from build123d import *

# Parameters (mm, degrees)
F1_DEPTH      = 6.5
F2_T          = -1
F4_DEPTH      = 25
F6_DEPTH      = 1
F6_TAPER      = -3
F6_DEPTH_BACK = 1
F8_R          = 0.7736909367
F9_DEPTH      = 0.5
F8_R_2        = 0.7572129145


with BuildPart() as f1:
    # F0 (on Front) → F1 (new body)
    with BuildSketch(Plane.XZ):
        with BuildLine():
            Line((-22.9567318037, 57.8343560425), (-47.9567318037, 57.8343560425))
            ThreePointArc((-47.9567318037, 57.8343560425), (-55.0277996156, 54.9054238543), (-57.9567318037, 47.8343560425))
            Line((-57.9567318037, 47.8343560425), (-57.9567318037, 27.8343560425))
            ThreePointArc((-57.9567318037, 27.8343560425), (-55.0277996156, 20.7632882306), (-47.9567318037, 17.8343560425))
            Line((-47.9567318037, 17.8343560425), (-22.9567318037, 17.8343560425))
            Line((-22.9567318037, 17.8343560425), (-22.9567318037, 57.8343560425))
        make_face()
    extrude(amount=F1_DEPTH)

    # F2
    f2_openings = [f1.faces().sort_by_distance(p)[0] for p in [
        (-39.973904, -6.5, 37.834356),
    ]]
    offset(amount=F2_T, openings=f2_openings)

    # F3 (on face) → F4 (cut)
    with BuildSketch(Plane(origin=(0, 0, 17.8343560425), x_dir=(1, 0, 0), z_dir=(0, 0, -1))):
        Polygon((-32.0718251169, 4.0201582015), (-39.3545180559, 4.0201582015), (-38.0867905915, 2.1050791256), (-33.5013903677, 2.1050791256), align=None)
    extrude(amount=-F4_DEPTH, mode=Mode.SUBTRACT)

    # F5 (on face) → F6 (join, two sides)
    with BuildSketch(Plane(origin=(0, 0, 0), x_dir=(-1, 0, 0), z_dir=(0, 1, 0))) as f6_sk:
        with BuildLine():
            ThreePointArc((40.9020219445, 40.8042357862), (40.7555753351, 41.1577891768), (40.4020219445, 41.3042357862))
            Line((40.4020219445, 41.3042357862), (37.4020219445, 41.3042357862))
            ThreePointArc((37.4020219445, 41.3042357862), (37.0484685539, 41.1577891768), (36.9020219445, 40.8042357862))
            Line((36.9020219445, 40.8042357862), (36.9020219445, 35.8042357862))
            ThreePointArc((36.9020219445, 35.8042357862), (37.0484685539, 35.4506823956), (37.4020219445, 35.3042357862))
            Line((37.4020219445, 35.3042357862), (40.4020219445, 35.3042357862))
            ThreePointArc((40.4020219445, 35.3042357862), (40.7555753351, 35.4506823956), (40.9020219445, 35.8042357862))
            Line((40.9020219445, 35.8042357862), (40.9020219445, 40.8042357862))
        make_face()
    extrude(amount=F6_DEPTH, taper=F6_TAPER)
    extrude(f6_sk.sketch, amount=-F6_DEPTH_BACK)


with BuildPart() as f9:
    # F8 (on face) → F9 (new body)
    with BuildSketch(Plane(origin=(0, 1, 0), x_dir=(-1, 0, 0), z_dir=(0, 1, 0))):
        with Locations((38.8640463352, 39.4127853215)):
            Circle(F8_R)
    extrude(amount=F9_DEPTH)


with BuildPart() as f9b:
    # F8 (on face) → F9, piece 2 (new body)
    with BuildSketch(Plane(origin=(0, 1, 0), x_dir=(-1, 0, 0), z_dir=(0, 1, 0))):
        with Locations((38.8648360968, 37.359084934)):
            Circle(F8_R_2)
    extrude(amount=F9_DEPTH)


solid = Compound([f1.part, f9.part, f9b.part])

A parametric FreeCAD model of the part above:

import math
import FreeCAD as App
import Part
import Sketcher
Q = App.Units.Quantity


def faces_at(feature, points):
    """Names of the faces that lie closest to the given points."""
    faces = feature.Shape.Faces
    near = lambda p: min(range(len(faces)), key=lambda i: faces[i].distToShape(Part.Vertex(*p))[0])
    return sorted({f"Face{near(p) + 1}" for p in points})


def add_polygon(sketch, points):
    """Adds a closed chain of lines whose ends are joined by coincident constraints."""
    first, n = sketch.GeometryCount, len(points)
    for a, b in zip(points, points[1:] + points[:1]):
        sketch.addGeometry(Part.LineSegment(App.Vector(*a, 0), App.Vector(*b, 0)), False)
    for i in range(n):
        sketch.addConstraint(Sketcher.Constraint("Coincident", first + i, 2, first + (i + 1) % n, 1))

doc = App.newDocument("Part")
body = doc.addObject("PartDesign::Body", "Body")

# Sketch on XZ plane
sketch1 = body.newObject("Sketcher::SketchObject", "Sketch")
sketch1.AttachmentSupport = (doc.getObject("XZ_Plane"), [""])
sketch1.MapMode = "FlatFace"
sketch1.addGeometry([
    Part.LineSegment(App.Vector(-23, 58, 0), App.Vector(-48, 58, 0)),  # 0
    Part.ArcOfCircle(Part.Circle(App.Vector(-48, 48, 0), App.Vector(0, 0, 1), 10), math.radians(90), math.radians(180)),  # 1
    Part.LineSegment(App.Vector(-58, 48, 0), App.Vector(-58, 28, 0)),  # 2
    Part.ArcOfCircle(Part.Circle(App.Vector(-48, 28, 0), App.Vector(0, 0, 1), 10), math.radians(180), math.radians(270)),  # 3
    Part.LineSegment(App.Vector(-48, 18, 0), App.Vector(-23, 18, 0)),  # 4
    Part.LineSegment(App.Vector(-23, 18, 0), App.Vector(-23, 58, 0)),  # 5
], False)
sketch1.addConstraint([
    Sketcher.Constraint("Tangent", 0, 2, 1, 1),
    Sketcher.Constraint("Tangent", 1, 2, 2, 1),
    Sketcher.Constraint("Tangent", 2, 2, 3, 1),
    Sketcher.Constraint("Tangent", 3, 2, 4, 1),
    Sketcher.Constraint("Coincident", 4, 2, 5, 1),
    Sketcher.Constraint("Coincident", 5, 2, 0, 1),
    Sketcher.Constraint("Horizontal", 0),
    Sketcher.Constraint("Vertical", 2),
    Sketcher.Constraint("Horizontal", 4),
    Sketcher.Constraint("Vertical", 5),
    Sketcher.Constraint("Equal", 1, 3),
    Sketcher.Constraint("Radius", 1, Q("10 mm")),
    Sketcher.Constraint("DistanceX", 0, 2, 0, 1, Q("25 mm")),
    Sketcher.Constraint("DistanceY", 2, 2, 2, 1, Q("20 mm")),
    Sketcher.Constraint("DistanceX", 1, 3, -1, 1, Q("47.956732 mm")),
    Sketcher.Constraint("DistanceY", -1, 1, 1, 3, Q("47.834356 mm")),
])
pad1 = body.newObject("PartDesign::Pad", "Pad")
pad1.Profile = sketch1
pad1.Length = 6.5
doc.recompute()

thickness = body.newObject("PartDesign::Thickness", "Thickness")
thickness.Base = (pad1, faces_at(pad1, [(-40.457, -6.5, 37.834)]))
thickness.Value = 1
thickness.Reversed = True
thickness.Join = "Arc"

# Sketch on XY plane
sketch2 = body.newObject("Sketcher::SketchObject", "Sketch001")
sketch2.AttachmentSupport = (doc.getObject("XY_Plane"), [""])
sketch2.MapMode = "FlatFace"
sketch2.AttachmentOffset = App.Placement(App.Vector(0, 0, 17.834356), App.Rotation())
add_polygon(sketch2, [(-32.1, -4), (-39.4, -4), (-38.1, -2.1), (-33.5, -2.1)])  # lines 0-3
sketch2.addConstraint([
    Sketcher.Constraint("Horizontal", 0),
    Sketcher.Constraint("Horizontal", 2),
    Sketcher.Constraint("DistanceX", 2, 1, 2, 2, Q("4.5854 mm")),
    Sketcher.Constraint("Distance", 3, Q("2.389809 mm")),
    Sketcher.Constraint("DistanceX", 0, 2, 0, 1, Q("7.282693 mm")),
    Sketcher.Constraint("DistanceX", 0, 2, -1, 1, Q("39.354518 mm")),
    Sketcher.Constraint("DistanceY", 0, 2, -1, 1, Q("4.020158 mm")),
    Sketcher.Constraint("DistanceX", 1, 2, -1, 1, Q("38.086791 mm")),
])
pocket1 = body.newObject("PartDesign::Pocket", "Pocket")
pocket1.Profile = sketch2
pocket1.Length = 25
pocket1.Reversed = True

# Sketch on XZ plane
sketch3 = body.newObject("Sketcher::SketchObject", "Sketch002")
sketch3.AttachmentSupport = (doc.getObject("XZ_Plane"), [""])
sketch3.MapMode = "FlatFace"
sketch3.addGeometry([
    Part.ArcOfCircle(Part.Circle(App.Vector(-40.4, 40.8, 0), App.Vector(0, 0, 1), 0.5), math.radians(90), math.radians(180)),  # 0
    Part.LineSegment(App.Vector(-40.4, 41.3, 0), App.Vector(-37.4, 41.3, 0)),  # 1
    Part.ArcOfCircle(Part.Circle(App.Vector(-37.4, 40.8, 0), App.Vector(0, 0, 1), 0.5), math.radians(0), math.radians(90)),  # 2
    Part.LineSegment(App.Vector(-36.9, 40.8, 0), App.Vector(-36.9, 35.8, 0)),  # 3
    Part.ArcOfCircle(Part.Circle(App.Vector(-37.4, 35.8, 0), App.Vector(0, 0, 1), 0.5), math.radians(-90), math.radians(0)),  # 4
    Part.LineSegment(App.Vector(-37.4, 35.3, 0), App.Vector(-40.4, 35.3, 0)),  # 5
    Part.ArcOfCircle(Part.Circle(App.Vector(-40.4, 35.8, 0), App.Vector(0, 0, 1), 0.5), math.radians(180), math.radians(270)),  # 6
    Part.LineSegment(App.Vector(-40.9, 35.8, 0), App.Vector(-40.9, 40.8, 0)),  # 7
], False)
sketch3.addConstraint([
    Sketcher.Constraint("Tangent", 0, 1, 1, 1),
    Sketcher.Constraint("Tangent", 1, 2, 2, 2),
    Sketcher.Constraint("Tangent", 2, 1, 3, 1),
    Sketcher.Constraint("Tangent", 3, 2, 4, 2),
    Sketcher.Constraint("Tangent", 4, 1, 5, 1),
    Sketcher.Constraint("Tangent", 5, 2, 6, 2),
    Sketcher.Constraint("Tangent", 6, 1, 7, 1),
    Sketcher.Constraint("Tangent", 7, 2, 0, 2),
    Sketcher.Constraint("Horizontal", 1),
    Sketcher.Constraint("Vertical", 3),
    Sketcher.Constraint("Horizontal", 5),
    Sketcher.Constraint("Vertical", 7),
    Sketcher.Constraint("Equal", 0, 2),
    Sketcher.Constraint("Equal", 2, 4),
    Sketcher.Constraint("Equal", 4, 6),
    Sketcher.Constraint("Radius", 0, Q("0.5 mm")),
    Sketcher.Constraint("DistanceX", 1, 1, 1, 2, Q("3 mm")),
    Sketcher.Constraint("DistanceY", 3, 2, 3, 1, Q("5 mm")),
    Sketcher.Constraint("DistanceX", 0, 3, -1, 1, Q("40.402022 mm")),
    Sketcher.Constraint("DistanceY", -1, 1, 0, 3, Q("40.804236 mm")),
])
pad2 = body.newObject("PartDesign::Pad", "Pad001")
pad2.Profile = sketch3
pad2.Length = 1
pad2.Reversed = True
pad2.TaperAngle = 3
pad3 = body.newObject("PartDesign::Pad", "Pad002")
pad3.Profile = sketch3
pad3.Length = 1
body2 = doc.addObject("PartDesign::Body", "Body001")

# Sketch on XZ plane
sketch4 = body2.newObject("Sketcher::SketchObject", "Sketch003")
sketch4.AttachmentSupport = (doc.getObject("XZ_Plane001"), [""])
sketch4.MapMode = "FlatFace"
sketch4.AttachmentOffset = App.Placement(App.Vector(0, 0, -1), App.Rotation())
sketch4.addGeometry(Part.Circle(App.Vector(-38.9, 39.4, 0), App.Vector(0, 0, 1), 0.8), False)
sketch4.addConstraint([
    Sketcher.Constraint("Diameter", 0, Q("1.547382 mm")),
    Sketcher.Constraint("DistanceX", 0, 3, -1, 1, Q("38.864046 mm")),
    Sketcher.Constraint("DistanceY", -1, 1, 0, 3, Q("39.412785 mm")),
])
pad4 = body2.newObject("PartDesign::Pad", "Pad003")
pad4.Profile = sketch4
pad4.Length = 0.5
pad4.Reversed = True
body3 = doc.addObject("PartDesign::Body", "Body002")

# Sketch on XZ plane
sketch5 = body3.newObject("Sketcher::SketchObject", "Sketch004")
sketch5.AttachmentSupport = (doc.getObject("XZ_Plane002"), [""])
sketch5.MapMode = "FlatFace"
sketch5.AttachmentOffset = App.Placement(App.Vector(0, 0, -1), App.Rotation())
sketch5.addGeometry(Part.Circle(App.Vector(-38.9, 37.4, 0), App.Vector(0, 0, 1), 0.8), False)
sketch5.addConstraint([
    Sketcher.Constraint("Diameter", 0, Q("1.514426 mm")),
    Sketcher.Constraint("DistanceX", 0, 3, -1, 1, Q("38.864836 mm")),
    Sketcher.Constraint("DistanceY", -1, 1, 0, 3, Q("37.359085 mm")),
])
pad5 = body3.newObject("PartDesign::Pad", "Pad004")
pad5.Profile = sketch5
pad5.Length = 0.5
pad5.Reversed = True

doc.recompute()
